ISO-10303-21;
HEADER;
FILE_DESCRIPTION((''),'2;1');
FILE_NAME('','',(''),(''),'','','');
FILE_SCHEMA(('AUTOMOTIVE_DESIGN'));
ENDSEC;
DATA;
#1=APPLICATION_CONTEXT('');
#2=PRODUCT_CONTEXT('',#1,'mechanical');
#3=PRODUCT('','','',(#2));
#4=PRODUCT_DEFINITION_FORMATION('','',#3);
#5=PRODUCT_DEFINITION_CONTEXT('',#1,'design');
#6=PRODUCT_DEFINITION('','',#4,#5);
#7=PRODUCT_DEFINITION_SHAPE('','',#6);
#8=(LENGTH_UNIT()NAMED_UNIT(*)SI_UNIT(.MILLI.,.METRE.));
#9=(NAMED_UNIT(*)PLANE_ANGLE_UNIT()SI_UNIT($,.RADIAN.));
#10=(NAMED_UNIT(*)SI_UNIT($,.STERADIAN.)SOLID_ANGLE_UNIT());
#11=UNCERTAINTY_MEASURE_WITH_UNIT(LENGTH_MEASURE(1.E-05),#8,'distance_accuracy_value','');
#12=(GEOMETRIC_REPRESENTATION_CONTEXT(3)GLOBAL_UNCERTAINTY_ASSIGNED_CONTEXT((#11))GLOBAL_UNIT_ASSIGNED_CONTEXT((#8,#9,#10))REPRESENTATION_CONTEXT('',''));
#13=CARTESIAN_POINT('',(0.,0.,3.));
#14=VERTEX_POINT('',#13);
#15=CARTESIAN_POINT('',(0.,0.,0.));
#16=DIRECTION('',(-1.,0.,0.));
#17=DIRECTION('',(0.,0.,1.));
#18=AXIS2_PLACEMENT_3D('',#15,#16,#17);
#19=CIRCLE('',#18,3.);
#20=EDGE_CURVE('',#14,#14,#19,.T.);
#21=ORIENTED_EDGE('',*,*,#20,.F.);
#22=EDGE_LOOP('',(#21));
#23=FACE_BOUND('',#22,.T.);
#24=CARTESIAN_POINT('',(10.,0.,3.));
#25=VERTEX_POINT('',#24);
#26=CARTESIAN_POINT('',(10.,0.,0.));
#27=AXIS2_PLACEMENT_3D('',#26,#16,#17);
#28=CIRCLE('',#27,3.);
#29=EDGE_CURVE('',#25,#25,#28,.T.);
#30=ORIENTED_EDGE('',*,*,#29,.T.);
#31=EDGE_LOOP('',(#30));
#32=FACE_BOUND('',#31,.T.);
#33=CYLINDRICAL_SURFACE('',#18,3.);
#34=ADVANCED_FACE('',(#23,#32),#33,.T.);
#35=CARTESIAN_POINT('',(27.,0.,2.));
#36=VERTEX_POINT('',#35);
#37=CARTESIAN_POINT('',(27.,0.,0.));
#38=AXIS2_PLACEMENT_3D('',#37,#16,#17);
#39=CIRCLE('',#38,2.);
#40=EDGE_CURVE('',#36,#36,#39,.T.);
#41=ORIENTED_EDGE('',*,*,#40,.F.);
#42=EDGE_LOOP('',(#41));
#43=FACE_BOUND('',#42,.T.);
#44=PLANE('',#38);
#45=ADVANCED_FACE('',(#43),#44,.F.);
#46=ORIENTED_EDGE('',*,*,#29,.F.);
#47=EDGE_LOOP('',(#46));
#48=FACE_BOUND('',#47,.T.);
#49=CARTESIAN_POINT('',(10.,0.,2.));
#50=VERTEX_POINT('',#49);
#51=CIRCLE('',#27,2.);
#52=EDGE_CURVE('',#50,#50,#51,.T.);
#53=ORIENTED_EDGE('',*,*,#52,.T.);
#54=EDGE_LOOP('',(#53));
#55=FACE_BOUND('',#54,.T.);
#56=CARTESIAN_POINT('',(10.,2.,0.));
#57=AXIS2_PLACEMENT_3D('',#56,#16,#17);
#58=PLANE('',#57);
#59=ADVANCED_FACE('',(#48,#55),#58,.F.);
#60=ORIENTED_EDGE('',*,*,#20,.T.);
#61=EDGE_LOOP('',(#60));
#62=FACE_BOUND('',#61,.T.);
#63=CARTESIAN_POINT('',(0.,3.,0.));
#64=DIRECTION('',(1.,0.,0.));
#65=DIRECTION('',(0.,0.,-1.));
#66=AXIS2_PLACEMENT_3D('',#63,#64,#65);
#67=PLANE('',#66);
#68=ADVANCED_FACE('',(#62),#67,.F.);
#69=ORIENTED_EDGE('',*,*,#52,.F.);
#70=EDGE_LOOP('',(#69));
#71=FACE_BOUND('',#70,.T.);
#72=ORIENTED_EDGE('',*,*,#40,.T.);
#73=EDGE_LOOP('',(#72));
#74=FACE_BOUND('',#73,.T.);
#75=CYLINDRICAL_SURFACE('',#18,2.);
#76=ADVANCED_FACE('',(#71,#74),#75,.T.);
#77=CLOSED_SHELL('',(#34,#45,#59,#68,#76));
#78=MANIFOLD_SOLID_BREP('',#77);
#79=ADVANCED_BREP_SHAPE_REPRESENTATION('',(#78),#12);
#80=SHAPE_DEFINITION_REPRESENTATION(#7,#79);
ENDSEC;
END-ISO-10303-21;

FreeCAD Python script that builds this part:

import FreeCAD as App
import Part
import Sketcher
from FreeCAD import Vector
Q = App.Units.Quantity


def add_polygon(sketch, points):
    """Adds a closed chain of lines whose ends are joined by coincident constraints."""
    first, n = sketch.GeometryCount, len(points)
    for a, b in zip(points, points[1:] + points[:1]):
        sketch.addGeometry(Part.LineSegment(App.Vector(*a, 0), App.Vector(*b, 0)), False)
    for i in range(n):
        sketch.addConstraint(Sketcher.Constraint("Coincident", first + i, 2, first + (i + 1) % n, 1))

doc = App.newDocument("Part")
body = doc.addObject("PartDesign::Body", "Body")

# Sketch on XY plane
sketch1 = body.newObject("Sketcher::SketchObject", "Sketch")
sketch1.AttachmentSupport = (doc.getObject("XY_Plane"), [""])
sketch1.MapMode = "FlatFace"
add_polygon(sketch1, [(27, 0), (27, 2), (10, 2), (10, 3), (0, 3), (0, 0)])  # lines 0-5
sketch1.addConstraint(Sketcher.Constraint("Vertical", 0))
sketch1.addConstraint(Sketcher.Constraint("Horizontal", 1))
sketch1.addConstraint(Sketcher.Constraint("Vertical", 2))
sketch1.addConstraint(Sketcher.Constraint("Horizontal", 3))
sketch1.addConstraint(Sketcher.Constraint("Vertical", 4))
sketch1.addConstraint(Sketcher.Constraint("Horizontal", 5))
sketch1.addConstraint(Sketcher.Constraint("Coincident", 4, 2, -1, 1))
sketch1.addConstraint(Sketcher.Constraint("DistanceX", 1, 2, 1, 1, Q("17 mm")))
sketch1.addConstraint(Sketcher.Constraint("DistanceX", 3, 2, 3, 1, Q("10 mm")))
sketch1.addConstraint(Sketcher.Constraint("DistanceY", 0, 1, 0, 2, Q("2 mm")))
sketch1.addConstraint(Sketcher.Constraint("DistanceY", 2, 1, 2, 2, Q("1 mm")))
revolution = body.newObject("PartDesign::Revolution", "Revolution")
revolution.Profile = sketch1
revolution.ReferenceAxis = (sketch1, ["H_Axis"])
revolution.Angle = 360

doc.recompute()
